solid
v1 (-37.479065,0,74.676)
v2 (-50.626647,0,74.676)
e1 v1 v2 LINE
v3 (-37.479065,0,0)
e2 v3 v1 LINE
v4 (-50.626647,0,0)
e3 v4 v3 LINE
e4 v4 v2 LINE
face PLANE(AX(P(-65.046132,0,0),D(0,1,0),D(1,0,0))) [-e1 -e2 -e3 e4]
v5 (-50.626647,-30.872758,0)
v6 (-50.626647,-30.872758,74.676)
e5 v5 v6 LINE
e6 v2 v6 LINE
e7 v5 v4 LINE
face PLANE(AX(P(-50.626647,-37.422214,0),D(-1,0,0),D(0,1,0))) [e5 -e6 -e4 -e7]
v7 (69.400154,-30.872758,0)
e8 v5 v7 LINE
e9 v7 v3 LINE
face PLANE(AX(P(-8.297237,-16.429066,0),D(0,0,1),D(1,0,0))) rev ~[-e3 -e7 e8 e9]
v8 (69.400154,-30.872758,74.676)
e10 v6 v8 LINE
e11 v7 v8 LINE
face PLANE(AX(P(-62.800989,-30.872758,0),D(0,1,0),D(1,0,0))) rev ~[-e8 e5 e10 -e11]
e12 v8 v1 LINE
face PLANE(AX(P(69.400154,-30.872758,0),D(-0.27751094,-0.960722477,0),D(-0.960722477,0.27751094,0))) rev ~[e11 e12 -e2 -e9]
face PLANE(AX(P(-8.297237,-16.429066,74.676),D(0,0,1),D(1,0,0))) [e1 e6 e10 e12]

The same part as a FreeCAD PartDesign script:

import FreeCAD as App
import Part
import Sketcher

V = App.Vector
Q = App.Units.Quantity

doc = App.newDocument("Part")
body = doc.addObject("PartDesign::Body", "Body")

# Sketch on XY plane
sketch1 = body.newObject("Sketcher::SketchObject", "Sketch")
sketch1.AttachmentSupport = (doc.getObject("XY_Plane"), [""])
sketch1.MapMode = "FlatFace"
sketch1.addGeometry([
    Part.LineSegment(V(-37, 18, 0), V(-63, 18, 0)),  # 0
    Part.LineSegment(V(-63, 18, 0), V(-63, -31, 0)),  # 1
    Part.LineSegment(V(-63, -31, 0), V(69, -31, 0)),  # 2
    Part.LineSegment(V(69, -31, 0), V(-37, 0, 0)),  # 3
    Part.LineSegment(V(-37, 0, 0), V(-37, 18, 0)),  # 4
], False)
sketch1.addConstraint([
    Sketcher.Constraint("Coincident", 0, 2, 1, 1),
    Sketcher.Constraint("Coincident", 1, 2, 2, 1),
    Sketcher.Constraint("Coincident", 2, 2, 3, 1),
    Sketcher.Constraint("Coincident", 3, 2, 4, 1),
    Sketcher.Constraint("Coincident", 4, 2, 0, 1),
    Sketcher.Constraint("Horizontal", 0),
    Sketcher.Constraint("Vertical", 1),
    Sketcher.Constraint("Horizontal", 2),
    Sketcher.Constraint("Vertical", 4),
    Sketcher.Constraint("PointOnObject", 3, 2, -1),
    Sketcher.Constraint("DistanceY", 1, 2, 1, 1, Q("48.672009 mm")),
    Sketcher.Constraint("DistanceY", 4, 1, 4, 2, Q("17.799251 mm")),
    Sketcher.Constraint("DistanceX", 0, 2, 0, 1, Q("25.321924 mm")),
    Sketcher.Constraint("DistanceX", 2, 1, 2, 2, Q("132.201143 mm")),
    Sketcher.Constraint("DistanceX", 0, 2, -1, 1, Q("62.800989 mm")),
])
pad1 = body.newObject("PartDesign::Pad", "Pad")
pad1.Profile = sketch1
pad1.Length = Q("2.94 in")

# Sketch on XY plane
sketch2 = body.newObject("Sketcher::SketchObject", "Sketch001")
sketch2.AttachmentSupport = (doc.getObject("XY_Plane"), [""])
sketch2.MapMode = "FlatFace"
sketch2.addGeometry([
    Part.LineSegment(V(-65, 39, 0), V(-65, 0, 0)),
    Part.LineSegment(V(-65, 0, 0), V(0, 0, 0)),
    Part.LineSegment(V(0, 0, 0), V(0, 39, 0)),
    Part.LineSegment(V(0, 39, 0), V(-65, 39, 0)),
], False)
sketch2.addConstraint([
    Sketcher.Constraint("Coincident", 0, 2, 1, 1),
    Sketcher.Constraint("Coincident", 1, 2, 2, 1),
    Sketcher.Constraint("Coincident", 2, 2, 3, 1),
    Sketcher.Constraint("Coincident", 3, 2, 0, 1),
    Sketcher.Constraint("Vertical", 0),
    Sketcher.Constraint("Horizontal", 1),
    Sketcher.Constraint("Vertical", 2),
    Sketcher.Constraint("Horizontal", 3),
    Sketcher.Constraint("Coincident", 1, 2, -1, 1),
    Sketcher.Constraint("DistanceX", 1, 1, 1, 2, Q("65.046132 mm")),
    Sketcher.Constraint("DistanceY", 0, 2, 0, 1, Q("38.793292 mm")),
])
pocket1 = body.newObject("PartDesign::Pocket", "Pocket")
pocket1.Profile = sketch2
pocket1.Length = Q("4.85 in")
pocket1.Reversed = True

# Sketch on XY plane
sketch3 = body.newObject("Sketcher::SketchObject", "Sketch002")
sketch3.AttachmentSupport = (doc.getObject("XY_Plane"), [""])
sketch3.MapMode = "FlatFace"
sketch3.addGeometry([
    Part.LineSegment(V(-134, 0, 0), V(-134, -43, 0)),
    Part.LineSegment(V(-134, -43, 0), V(-59, -43, 0)),
    Part.LineSegment(V(-59, -43, 0), V(-59, 0, 0)),
    Part.LineSegment(V(-59, 0, 0), V(-134, 0, 0)),
], False)
sketch3.addConstraint([
    Sketcher.Constraint("Coincident", 0, 2, 1, 1),
    Sketcher.Constraint("Coincident", 1, 2, 2, 1),
    Sketcher.Constraint("Coincident", 2, 2, 3, 1),
    Sketcher.Constraint("Coincident", 3, 2, 0, 1),
    Sketcher.Constraint("Vertical", 0),
    Sketcher.Constraint("Horizontal", 1),
    Sketcher.Constraint("Vertical", 2),
    Sketcher.Constraint("Horizontal", 3),
    Sketcher.Constraint("PointOnObject", 2, 2, -1),
    Sketcher.Constraint("DistanceX", 1, 1, 1, 2, Q("2.9671 in")),
    Sketcher.Constraint("DistanceY", 0, 2, 0, 1, Q("42.812191 mm")),
    Sketcher.Constraint("DistanceX", 0, 2, -1, 1, Q("134.120658 mm")),
])
pocket2 = body.newObject("PartDesign::Pocket", "Pocket001")
pocket2.Profile = sketch3
pocket2.Length = Q("3.1 in")
pocket2.Reversed = True

# Sketch on XY plane
sketch4 = body.newObject("Sketcher::SketchObject", "Sketch003")
sketch4.AttachmentSupport = (doc.getObject("XY_Plane"), [""])
sketch4.MapMode = "FlatFace"
sketch4.addGeometry([
    Part.LineSegment(V(-66, 0, 0), V(-66, -37, 0)),
    Part.LineSegment(V(-66, -37, 0), V(-51, -37, 0)),
    Part.LineSegment(V(-51, -37, 0), V(-51, 0, 0)),
    Part.LineSegment(V(-51, 0, 0), V(-66, 0, 0)),
], False)
sketch4.addConstraint([
    Sketcher.Constraint("Coincident", 0, 2, 1, 1),
    Sketcher.Constraint("Coincident", 1, 2, 2, 1),
    Sketcher.Constraint("Coincident", 2, 2, 3, 1),
    Sketcher.Constraint("Coincident", 3, 2, 0, 1),
    Sketcher.Constraint("Vertical", 0),
    Sketcher.Constraint("Horizontal", 1),
    Sketcher.Constraint("Vertical", 2),
    Sketcher.Constraint("Horizontal", 3),
    Sketcher.Constraint("PointOnObject", 2, 2, -1),
    Sketcher.Constraint("DistanceX", 1, 1, 1, 2, Q("15.368398 mm")),
    Sketcher.Constraint("DistanceY", 0, 2, 0, 1, Q("37.422214 mm")),
    Sketcher.Constraint("DistanceX", 0, 2, -1, 1, Q("65.995045 mm")),
])
pocket3 = body.newObject("PartDesign::Pocket", "Pocket002")
pocket3.Profile = sketch4
pocket3.Length = Q("4.6 in")
pocket3.Reversed = True

doc.recompute()
